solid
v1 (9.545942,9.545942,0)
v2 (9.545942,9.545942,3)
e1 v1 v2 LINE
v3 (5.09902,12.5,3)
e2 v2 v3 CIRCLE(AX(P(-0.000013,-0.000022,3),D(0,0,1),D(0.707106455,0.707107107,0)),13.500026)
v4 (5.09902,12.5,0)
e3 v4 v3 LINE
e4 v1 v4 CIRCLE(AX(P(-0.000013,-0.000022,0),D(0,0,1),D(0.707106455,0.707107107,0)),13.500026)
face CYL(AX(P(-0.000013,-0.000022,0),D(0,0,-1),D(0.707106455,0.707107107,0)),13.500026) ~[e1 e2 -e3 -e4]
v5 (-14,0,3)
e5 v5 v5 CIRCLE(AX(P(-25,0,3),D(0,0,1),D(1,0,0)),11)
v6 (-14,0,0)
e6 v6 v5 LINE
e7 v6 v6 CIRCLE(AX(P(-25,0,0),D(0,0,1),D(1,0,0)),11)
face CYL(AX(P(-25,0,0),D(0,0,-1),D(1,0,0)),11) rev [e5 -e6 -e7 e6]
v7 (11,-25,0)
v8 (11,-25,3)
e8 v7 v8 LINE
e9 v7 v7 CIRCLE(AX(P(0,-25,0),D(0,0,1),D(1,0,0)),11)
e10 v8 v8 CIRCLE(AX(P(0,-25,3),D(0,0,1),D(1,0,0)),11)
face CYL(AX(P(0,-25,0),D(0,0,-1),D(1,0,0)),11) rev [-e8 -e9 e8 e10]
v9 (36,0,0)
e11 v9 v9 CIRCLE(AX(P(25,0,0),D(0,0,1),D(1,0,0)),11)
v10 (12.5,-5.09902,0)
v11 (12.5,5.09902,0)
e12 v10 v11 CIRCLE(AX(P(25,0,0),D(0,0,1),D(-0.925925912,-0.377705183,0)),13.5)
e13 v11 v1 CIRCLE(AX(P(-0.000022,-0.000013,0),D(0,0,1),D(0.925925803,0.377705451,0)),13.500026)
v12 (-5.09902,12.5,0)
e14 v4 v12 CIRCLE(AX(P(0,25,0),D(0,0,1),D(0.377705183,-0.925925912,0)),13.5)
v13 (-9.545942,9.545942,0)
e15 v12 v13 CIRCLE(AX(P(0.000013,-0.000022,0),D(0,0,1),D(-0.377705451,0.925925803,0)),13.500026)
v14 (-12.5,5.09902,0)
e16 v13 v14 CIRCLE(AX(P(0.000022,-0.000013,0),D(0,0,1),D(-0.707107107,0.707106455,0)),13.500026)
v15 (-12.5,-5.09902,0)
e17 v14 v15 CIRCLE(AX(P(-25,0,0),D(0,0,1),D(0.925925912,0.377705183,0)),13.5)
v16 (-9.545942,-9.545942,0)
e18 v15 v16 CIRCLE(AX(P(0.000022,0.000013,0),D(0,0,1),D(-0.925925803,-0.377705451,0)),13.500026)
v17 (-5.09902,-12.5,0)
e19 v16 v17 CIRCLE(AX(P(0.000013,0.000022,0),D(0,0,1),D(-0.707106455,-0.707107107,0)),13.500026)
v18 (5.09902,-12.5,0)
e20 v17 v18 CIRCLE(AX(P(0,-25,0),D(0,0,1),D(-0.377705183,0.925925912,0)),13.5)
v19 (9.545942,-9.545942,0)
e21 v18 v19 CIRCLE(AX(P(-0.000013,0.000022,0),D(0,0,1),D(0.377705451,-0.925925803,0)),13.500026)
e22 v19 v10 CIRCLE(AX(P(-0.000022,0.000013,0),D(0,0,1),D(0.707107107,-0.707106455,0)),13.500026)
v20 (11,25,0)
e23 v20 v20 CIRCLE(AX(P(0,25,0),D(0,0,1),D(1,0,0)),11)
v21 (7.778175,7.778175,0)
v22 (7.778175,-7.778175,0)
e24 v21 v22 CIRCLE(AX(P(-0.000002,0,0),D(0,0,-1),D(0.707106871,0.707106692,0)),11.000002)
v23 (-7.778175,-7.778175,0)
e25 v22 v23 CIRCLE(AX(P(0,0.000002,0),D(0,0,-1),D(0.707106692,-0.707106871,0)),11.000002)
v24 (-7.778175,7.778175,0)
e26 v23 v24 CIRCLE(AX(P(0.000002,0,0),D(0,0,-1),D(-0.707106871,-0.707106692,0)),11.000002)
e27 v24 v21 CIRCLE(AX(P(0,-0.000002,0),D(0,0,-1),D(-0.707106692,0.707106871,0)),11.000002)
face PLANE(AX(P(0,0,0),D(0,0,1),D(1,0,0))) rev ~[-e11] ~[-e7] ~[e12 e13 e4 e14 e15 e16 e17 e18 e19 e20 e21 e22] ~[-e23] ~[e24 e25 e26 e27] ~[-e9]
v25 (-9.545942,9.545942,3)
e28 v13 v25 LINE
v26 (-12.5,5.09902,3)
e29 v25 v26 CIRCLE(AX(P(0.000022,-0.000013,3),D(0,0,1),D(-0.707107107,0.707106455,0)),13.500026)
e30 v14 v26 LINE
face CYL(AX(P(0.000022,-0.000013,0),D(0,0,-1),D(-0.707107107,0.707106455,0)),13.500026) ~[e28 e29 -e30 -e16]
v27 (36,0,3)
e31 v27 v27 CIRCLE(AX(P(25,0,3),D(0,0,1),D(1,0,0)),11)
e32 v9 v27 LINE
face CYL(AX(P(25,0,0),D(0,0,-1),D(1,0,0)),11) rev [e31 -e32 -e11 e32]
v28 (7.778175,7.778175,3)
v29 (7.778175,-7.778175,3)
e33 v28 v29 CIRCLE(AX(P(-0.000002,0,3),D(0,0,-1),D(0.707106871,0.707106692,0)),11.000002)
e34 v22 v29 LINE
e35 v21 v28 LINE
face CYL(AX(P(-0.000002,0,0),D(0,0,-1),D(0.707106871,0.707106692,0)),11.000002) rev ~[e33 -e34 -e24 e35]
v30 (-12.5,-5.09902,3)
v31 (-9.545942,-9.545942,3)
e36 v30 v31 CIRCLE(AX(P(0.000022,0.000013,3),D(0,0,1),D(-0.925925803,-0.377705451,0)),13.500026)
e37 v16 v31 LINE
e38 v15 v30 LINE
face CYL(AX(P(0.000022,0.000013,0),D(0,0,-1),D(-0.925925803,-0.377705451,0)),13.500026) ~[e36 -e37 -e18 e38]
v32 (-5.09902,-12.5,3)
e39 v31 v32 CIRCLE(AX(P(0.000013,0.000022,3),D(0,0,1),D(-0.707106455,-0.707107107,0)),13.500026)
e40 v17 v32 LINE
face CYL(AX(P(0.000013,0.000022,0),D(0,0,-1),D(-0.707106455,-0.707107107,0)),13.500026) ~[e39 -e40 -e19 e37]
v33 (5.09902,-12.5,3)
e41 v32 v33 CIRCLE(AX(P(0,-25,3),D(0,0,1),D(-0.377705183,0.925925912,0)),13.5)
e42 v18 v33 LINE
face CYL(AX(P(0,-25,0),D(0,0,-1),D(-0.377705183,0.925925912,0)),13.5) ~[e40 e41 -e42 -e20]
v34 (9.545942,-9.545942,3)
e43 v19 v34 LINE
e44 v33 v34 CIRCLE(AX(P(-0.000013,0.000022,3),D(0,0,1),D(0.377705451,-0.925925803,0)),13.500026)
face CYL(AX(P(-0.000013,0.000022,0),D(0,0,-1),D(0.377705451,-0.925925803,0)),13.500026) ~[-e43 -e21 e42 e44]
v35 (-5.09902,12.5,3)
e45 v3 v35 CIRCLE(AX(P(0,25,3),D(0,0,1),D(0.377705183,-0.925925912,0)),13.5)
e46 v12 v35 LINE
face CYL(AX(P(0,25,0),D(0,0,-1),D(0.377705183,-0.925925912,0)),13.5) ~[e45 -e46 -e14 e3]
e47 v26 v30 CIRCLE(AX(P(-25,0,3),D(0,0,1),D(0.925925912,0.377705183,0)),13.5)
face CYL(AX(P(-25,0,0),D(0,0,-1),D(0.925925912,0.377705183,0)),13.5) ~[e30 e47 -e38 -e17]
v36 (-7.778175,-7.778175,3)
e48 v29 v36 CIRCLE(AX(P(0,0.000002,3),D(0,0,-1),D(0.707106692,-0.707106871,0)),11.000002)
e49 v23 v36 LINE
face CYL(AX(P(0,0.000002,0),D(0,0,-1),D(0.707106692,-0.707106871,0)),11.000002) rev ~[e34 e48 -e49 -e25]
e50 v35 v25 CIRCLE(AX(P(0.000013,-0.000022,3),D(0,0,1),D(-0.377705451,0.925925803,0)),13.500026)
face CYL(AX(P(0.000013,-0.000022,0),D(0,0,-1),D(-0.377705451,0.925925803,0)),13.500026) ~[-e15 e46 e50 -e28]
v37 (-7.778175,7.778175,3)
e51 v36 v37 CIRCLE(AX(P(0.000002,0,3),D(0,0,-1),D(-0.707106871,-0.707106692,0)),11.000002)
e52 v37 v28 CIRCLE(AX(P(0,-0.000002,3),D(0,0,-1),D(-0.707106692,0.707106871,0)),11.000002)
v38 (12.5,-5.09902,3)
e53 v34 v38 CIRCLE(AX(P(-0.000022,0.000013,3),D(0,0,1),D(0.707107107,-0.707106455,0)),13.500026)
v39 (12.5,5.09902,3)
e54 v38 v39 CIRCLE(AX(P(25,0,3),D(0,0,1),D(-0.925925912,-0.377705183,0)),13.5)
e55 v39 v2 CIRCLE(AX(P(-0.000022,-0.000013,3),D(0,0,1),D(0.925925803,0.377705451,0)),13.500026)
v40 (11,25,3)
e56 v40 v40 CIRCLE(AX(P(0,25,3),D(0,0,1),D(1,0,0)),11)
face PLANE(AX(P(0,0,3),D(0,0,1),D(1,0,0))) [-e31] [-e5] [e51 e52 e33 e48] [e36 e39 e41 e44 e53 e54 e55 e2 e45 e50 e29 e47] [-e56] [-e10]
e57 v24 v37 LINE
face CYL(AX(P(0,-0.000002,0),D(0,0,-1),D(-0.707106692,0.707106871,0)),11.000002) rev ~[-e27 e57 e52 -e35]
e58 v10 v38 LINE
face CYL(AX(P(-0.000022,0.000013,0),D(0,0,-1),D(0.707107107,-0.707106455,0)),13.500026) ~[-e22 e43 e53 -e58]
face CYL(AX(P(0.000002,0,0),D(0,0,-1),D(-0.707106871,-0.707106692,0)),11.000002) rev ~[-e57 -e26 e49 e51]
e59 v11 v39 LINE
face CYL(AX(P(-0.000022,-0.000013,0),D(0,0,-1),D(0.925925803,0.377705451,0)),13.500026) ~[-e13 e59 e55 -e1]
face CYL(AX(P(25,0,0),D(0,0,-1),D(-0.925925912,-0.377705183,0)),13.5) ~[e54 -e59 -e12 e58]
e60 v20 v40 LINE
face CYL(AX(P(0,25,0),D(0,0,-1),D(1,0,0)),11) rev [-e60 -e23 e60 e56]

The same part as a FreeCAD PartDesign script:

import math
import FreeCAD as App
import Part
import Sketcher

doc = App.newDocument("Part")
body = doc.addObject("PartDesign::Body", "Body")

# Sketch on XY plane
sketch1 = body.newObject("Sketcher::SketchObject", "Sketch")
sketch1.AttachmentSupport = (doc.getObject("XY_Plane"), [""])
sketch1.MapMode = "FlatFace"
sketch1.addGeometry([
    Part.ArcOfCircle(Part.Circle(App.Vector(0, 25, 0), App.Vector(0, 0, 1), 13.5), math.radians(-67.808391), math.radians(247.808391)),  # 0
    Part.ArcOfCircle(Part.Circle(App.Vector(0.000013, -0.000022, 0), App.Vector(0, 0, 1), 13.500026), math.radians(112.191625), math.radians(134.999974)),  # 1
    Part.ArcOfCircle(Part.Circle(App.Vector(0.000022, -0.000013, 0), App.Vector(0, 0, 1), 13.500026), math.radians(135.000026), math.radians(157.808375)),  # 2
    Part.ArcOfCircle(Part.Circle(App.Vector(-25, 0, 0), App.Vector(0, 0, 1), 13.5), math.radians(22.191609), math.radians(337.808391)),  # 3
    Part.ArcOfCircle(Part.Circle(App.Vector(0.000022, 0.000013, 0), App.Vector(0, 0, 1), 13.500026), math.radians(-157.808375), math.radians(-135.000026)),  # 4
    Part.ArcOfCircle(Part.Circle(App.Vector(0.000013, 0.000022, 0), App.Vector(0, 0, 1), 13.500026), math.radians(-134.999974), math.radians(-112.191625)),  # 5
    Part.ArcOfCircle(Part.Circle(App.Vector(0, -25, 0), App.Vector(0, 0, 1), 13.5), math.radians(112.191609), math.radians(427.808391)),  # 6
    Part.ArcOfCircle(Part.Circle(App.Vector(-0.000013, 0.000022, 0), App.Vector(0, 0, 1), 13.500026), math.radians(-67.808375), math.radians(-45.000026)),  # 7
    Part.ArcOfCircle(Part.Circle(App.Vector(-0.000022, 0.000013, 0), App.Vector(0, 0, 1), 13.500026), math.radians(-44.999974), math.radians(-22.191625)),  # 8
    Part.ArcOfCircle(Part.Circle(App.Vector(25, 0, 0), App.Vector(0, 0, 1), 13.5), math.radians(-157.808391), math.radians(157.808391)),  # 9
    Part.ArcOfCircle(Part.Circle(App.Vector(-0.000022, -0.000013, 0), App.Vector(0, 0, 1), 13.500026), math.radians(22.191625), math.radians(44.999974)),  # 10
    Part.ArcOfCircle(Part.Circle(App.Vector(-0.000013, -0.000022, 0), App.Vector(0, 0, 1), 13.500026), math.radians(45.000026), math.radians(67.808375)),  # 11
    Part.Circle(App.Vector(0, -25, 0), App.Vector(0, 0, 1), 11),  # 12
    Part.Circle(App.Vector(-25, 0, 0), App.Vector(0, 0, 1), 11),  # 13
    Part.ArcOfCircle(Part.Circle(App.Vector(0.000002, 0, 0), App.Vector(0, 0, 1), 11.000002), math.radians(135.000007), math.radians(224.999993)),  # 14
    Part.ArcOfCircle(Part.Circle(App.Vector(0, -0.000002, 0), App.Vector(0, 0, 1), 11.000002), math.radians(45.000007), math.radians(134.999993)),  # 15
    Part.ArcOfCircle(Part.Circle(App.Vector(-0.000002, 0, 0), App.Vector(0, 0, 1), 11.000002), math.radians(-44.999993), math.radians(44.999993)),  # 16
    Part.ArcOfCircle(Part.Circle(App.Vector(0, 0.000002, 0), App.Vector(0, 0, 1), 11.000002), math.radians(-134.999993), math.radians(-45.000007)),  # 17
    Part.Circle(App.Vector(25, 0, 0), App.Vector(0, 0, 1), 11),  # 18
    Part.Circle(App.Vector(0, 25, 0), App.Vector(0, 0, 1), 11),  # 19
], False)
sketch1.addConstraint([
    Sketcher.Constraint("Coincident", 0, 2, 1, 1),
    Sketcher.Constraint("Tangent", 1, 2, 2, 1),
    Sketcher.Constraint("Coincident", 2, 2, 3, 1),
    Sketcher.Constraint("Coincident", 3, 2, 4, 1),
    Sketcher.Constraint("Tangent", 4, 2, 5, 1),
    Sketcher.Constraint("Coincident", 5, 2, 6, 1),
    Sketcher.Constraint("Coincident", 6, 2, 7, 1),
    Sketcher.Constraint("Tangent", 7, 2, 8, 1),
    Sketcher.Constraint("Coincident", 8, 2, 9, 1),
    Sketcher.Constraint("Coincident", 9, 2, 10, 1),
    Sketcher.Constraint("Tangent", 10, 2, 11, 1),
    Sketcher.Constraint("Coincident", 11, 2, 0, 1),
    Sketcher.Constraint("Tangent", 14, 1, 15, 2),
    Sketcher.Constraint("Tangent", 15, 1, 16, 2),
    Sketcher.Constraint("Tangent", 16, 1, 17, 2),
    Sketcher.Constraint("Tangent", 17, 1, 14, 2),
    Sketcher.Constraint("Coincident", 14, 3, -1, 1),
    Sketcher.Constraint("Coincident", 12, 3, 6, 3),
    Sketcher.Constraint("Coincident", 13, 3, 3, 3),
    Sketcher.Constraint("Coincident", 18, 3, 9, 3),
    Sketcher.Constraint("Coincident", 19, 3, 0, 3),
    Sketcher.Constraint("Equal", 1, 2),
    Sketcher.Constraint("Equal", 0, 3),
    Sketcher.Constraint("Equal", 2, 4),
    Sketcher.Constraint("Equal", 4, 5),
    Sketcher.Constraint("Equal", 3, 6),
    Sketcher.Constraint("Equal", 5, 7),
    Sketcher.Constraint("Equal", 7, 8),
    Sketcher.Constraint("Equal", 6, 9),
    Sketcher.Constraint("Equal", 8, 10),
    Sketcher.Constraint("Equal", 10, 11),
    Sketcher.Constraint("Equal", 12, 13),
    Sketcher.Constraint("Equal", 13, 14),
    Sketcher.Constraint("Equal", 14, 15),
    Sketcher.Constraint("Equal", 17, 18),
    Sketcher.Constraint("Equal", 18, 19),
    Sketcher.Constraint("Symmetric", 0, 3, 6, 3, -1, 1),
    Sketcher.Constraint("Symmetric", 1, 3, 7, 3, -1, 1),
    Sketcher.Constraint("Symmetric", 3, 3, 9, 3, -1, 1),
    Sketcher.Constraint("Symmetric", 4, 3, 10, 3, -1, 1),
    Sketcher.Constraint("Symmetric", 5, 3, 7, 3, -2),
    Sketcher.Constraint("PointOnObject", 0, 3, -2),
    Sketcher.Constraint("PointOnObject", 3, 3, -1),
    Sketcher.Constraint("Horizontal", 4, 2, 7, 2),
    Sketcher.Constraint("Horizontal", 1, 2, 10, 2),
    Sketcher.Constraint("Horizontal", 14, 1, 15, 1),
    Sketcher.Constraint("Horizontal", 16, 1, 17, 1),
    Sketcher.Constraint("Vertical", 1, 2, 4, 2),
    Sketcher.Constraint("Vertical", 15, 1, 16, 1),
    Sketcher.Constraint("Diameter", 12, 22.0),
    Sketcher.Constraint("Radius", 0, 13.5),
    Sketcher.Constraint("DistanceY", -1, 1, 0, 3, 25.0),
    Sketcher.Constraint("DistanceX", 3, 3, -1, 1, 25.0),
    Sketcher.Constraint("DistanceY", -1, 1, 0, 2, 12.5),
    Sketcher.Constraint("DistanceX", 2, 2, -1, 1, 12.5),
    Sketcher.Constraint("Radius", 1, 13.500026),
    Sketcher.Constraint("DistanceY", 1, 2, 0, 2, 2.954058),
    Sketcher.Constraint("DistanceX", 14, 1, 7, 3, 7.778162),
])
pad1 = body.newObject("PartDesign::Pad", "Pad")
pad1.Profile = sketch1
pad1.Length = 3

doc.recompute()
